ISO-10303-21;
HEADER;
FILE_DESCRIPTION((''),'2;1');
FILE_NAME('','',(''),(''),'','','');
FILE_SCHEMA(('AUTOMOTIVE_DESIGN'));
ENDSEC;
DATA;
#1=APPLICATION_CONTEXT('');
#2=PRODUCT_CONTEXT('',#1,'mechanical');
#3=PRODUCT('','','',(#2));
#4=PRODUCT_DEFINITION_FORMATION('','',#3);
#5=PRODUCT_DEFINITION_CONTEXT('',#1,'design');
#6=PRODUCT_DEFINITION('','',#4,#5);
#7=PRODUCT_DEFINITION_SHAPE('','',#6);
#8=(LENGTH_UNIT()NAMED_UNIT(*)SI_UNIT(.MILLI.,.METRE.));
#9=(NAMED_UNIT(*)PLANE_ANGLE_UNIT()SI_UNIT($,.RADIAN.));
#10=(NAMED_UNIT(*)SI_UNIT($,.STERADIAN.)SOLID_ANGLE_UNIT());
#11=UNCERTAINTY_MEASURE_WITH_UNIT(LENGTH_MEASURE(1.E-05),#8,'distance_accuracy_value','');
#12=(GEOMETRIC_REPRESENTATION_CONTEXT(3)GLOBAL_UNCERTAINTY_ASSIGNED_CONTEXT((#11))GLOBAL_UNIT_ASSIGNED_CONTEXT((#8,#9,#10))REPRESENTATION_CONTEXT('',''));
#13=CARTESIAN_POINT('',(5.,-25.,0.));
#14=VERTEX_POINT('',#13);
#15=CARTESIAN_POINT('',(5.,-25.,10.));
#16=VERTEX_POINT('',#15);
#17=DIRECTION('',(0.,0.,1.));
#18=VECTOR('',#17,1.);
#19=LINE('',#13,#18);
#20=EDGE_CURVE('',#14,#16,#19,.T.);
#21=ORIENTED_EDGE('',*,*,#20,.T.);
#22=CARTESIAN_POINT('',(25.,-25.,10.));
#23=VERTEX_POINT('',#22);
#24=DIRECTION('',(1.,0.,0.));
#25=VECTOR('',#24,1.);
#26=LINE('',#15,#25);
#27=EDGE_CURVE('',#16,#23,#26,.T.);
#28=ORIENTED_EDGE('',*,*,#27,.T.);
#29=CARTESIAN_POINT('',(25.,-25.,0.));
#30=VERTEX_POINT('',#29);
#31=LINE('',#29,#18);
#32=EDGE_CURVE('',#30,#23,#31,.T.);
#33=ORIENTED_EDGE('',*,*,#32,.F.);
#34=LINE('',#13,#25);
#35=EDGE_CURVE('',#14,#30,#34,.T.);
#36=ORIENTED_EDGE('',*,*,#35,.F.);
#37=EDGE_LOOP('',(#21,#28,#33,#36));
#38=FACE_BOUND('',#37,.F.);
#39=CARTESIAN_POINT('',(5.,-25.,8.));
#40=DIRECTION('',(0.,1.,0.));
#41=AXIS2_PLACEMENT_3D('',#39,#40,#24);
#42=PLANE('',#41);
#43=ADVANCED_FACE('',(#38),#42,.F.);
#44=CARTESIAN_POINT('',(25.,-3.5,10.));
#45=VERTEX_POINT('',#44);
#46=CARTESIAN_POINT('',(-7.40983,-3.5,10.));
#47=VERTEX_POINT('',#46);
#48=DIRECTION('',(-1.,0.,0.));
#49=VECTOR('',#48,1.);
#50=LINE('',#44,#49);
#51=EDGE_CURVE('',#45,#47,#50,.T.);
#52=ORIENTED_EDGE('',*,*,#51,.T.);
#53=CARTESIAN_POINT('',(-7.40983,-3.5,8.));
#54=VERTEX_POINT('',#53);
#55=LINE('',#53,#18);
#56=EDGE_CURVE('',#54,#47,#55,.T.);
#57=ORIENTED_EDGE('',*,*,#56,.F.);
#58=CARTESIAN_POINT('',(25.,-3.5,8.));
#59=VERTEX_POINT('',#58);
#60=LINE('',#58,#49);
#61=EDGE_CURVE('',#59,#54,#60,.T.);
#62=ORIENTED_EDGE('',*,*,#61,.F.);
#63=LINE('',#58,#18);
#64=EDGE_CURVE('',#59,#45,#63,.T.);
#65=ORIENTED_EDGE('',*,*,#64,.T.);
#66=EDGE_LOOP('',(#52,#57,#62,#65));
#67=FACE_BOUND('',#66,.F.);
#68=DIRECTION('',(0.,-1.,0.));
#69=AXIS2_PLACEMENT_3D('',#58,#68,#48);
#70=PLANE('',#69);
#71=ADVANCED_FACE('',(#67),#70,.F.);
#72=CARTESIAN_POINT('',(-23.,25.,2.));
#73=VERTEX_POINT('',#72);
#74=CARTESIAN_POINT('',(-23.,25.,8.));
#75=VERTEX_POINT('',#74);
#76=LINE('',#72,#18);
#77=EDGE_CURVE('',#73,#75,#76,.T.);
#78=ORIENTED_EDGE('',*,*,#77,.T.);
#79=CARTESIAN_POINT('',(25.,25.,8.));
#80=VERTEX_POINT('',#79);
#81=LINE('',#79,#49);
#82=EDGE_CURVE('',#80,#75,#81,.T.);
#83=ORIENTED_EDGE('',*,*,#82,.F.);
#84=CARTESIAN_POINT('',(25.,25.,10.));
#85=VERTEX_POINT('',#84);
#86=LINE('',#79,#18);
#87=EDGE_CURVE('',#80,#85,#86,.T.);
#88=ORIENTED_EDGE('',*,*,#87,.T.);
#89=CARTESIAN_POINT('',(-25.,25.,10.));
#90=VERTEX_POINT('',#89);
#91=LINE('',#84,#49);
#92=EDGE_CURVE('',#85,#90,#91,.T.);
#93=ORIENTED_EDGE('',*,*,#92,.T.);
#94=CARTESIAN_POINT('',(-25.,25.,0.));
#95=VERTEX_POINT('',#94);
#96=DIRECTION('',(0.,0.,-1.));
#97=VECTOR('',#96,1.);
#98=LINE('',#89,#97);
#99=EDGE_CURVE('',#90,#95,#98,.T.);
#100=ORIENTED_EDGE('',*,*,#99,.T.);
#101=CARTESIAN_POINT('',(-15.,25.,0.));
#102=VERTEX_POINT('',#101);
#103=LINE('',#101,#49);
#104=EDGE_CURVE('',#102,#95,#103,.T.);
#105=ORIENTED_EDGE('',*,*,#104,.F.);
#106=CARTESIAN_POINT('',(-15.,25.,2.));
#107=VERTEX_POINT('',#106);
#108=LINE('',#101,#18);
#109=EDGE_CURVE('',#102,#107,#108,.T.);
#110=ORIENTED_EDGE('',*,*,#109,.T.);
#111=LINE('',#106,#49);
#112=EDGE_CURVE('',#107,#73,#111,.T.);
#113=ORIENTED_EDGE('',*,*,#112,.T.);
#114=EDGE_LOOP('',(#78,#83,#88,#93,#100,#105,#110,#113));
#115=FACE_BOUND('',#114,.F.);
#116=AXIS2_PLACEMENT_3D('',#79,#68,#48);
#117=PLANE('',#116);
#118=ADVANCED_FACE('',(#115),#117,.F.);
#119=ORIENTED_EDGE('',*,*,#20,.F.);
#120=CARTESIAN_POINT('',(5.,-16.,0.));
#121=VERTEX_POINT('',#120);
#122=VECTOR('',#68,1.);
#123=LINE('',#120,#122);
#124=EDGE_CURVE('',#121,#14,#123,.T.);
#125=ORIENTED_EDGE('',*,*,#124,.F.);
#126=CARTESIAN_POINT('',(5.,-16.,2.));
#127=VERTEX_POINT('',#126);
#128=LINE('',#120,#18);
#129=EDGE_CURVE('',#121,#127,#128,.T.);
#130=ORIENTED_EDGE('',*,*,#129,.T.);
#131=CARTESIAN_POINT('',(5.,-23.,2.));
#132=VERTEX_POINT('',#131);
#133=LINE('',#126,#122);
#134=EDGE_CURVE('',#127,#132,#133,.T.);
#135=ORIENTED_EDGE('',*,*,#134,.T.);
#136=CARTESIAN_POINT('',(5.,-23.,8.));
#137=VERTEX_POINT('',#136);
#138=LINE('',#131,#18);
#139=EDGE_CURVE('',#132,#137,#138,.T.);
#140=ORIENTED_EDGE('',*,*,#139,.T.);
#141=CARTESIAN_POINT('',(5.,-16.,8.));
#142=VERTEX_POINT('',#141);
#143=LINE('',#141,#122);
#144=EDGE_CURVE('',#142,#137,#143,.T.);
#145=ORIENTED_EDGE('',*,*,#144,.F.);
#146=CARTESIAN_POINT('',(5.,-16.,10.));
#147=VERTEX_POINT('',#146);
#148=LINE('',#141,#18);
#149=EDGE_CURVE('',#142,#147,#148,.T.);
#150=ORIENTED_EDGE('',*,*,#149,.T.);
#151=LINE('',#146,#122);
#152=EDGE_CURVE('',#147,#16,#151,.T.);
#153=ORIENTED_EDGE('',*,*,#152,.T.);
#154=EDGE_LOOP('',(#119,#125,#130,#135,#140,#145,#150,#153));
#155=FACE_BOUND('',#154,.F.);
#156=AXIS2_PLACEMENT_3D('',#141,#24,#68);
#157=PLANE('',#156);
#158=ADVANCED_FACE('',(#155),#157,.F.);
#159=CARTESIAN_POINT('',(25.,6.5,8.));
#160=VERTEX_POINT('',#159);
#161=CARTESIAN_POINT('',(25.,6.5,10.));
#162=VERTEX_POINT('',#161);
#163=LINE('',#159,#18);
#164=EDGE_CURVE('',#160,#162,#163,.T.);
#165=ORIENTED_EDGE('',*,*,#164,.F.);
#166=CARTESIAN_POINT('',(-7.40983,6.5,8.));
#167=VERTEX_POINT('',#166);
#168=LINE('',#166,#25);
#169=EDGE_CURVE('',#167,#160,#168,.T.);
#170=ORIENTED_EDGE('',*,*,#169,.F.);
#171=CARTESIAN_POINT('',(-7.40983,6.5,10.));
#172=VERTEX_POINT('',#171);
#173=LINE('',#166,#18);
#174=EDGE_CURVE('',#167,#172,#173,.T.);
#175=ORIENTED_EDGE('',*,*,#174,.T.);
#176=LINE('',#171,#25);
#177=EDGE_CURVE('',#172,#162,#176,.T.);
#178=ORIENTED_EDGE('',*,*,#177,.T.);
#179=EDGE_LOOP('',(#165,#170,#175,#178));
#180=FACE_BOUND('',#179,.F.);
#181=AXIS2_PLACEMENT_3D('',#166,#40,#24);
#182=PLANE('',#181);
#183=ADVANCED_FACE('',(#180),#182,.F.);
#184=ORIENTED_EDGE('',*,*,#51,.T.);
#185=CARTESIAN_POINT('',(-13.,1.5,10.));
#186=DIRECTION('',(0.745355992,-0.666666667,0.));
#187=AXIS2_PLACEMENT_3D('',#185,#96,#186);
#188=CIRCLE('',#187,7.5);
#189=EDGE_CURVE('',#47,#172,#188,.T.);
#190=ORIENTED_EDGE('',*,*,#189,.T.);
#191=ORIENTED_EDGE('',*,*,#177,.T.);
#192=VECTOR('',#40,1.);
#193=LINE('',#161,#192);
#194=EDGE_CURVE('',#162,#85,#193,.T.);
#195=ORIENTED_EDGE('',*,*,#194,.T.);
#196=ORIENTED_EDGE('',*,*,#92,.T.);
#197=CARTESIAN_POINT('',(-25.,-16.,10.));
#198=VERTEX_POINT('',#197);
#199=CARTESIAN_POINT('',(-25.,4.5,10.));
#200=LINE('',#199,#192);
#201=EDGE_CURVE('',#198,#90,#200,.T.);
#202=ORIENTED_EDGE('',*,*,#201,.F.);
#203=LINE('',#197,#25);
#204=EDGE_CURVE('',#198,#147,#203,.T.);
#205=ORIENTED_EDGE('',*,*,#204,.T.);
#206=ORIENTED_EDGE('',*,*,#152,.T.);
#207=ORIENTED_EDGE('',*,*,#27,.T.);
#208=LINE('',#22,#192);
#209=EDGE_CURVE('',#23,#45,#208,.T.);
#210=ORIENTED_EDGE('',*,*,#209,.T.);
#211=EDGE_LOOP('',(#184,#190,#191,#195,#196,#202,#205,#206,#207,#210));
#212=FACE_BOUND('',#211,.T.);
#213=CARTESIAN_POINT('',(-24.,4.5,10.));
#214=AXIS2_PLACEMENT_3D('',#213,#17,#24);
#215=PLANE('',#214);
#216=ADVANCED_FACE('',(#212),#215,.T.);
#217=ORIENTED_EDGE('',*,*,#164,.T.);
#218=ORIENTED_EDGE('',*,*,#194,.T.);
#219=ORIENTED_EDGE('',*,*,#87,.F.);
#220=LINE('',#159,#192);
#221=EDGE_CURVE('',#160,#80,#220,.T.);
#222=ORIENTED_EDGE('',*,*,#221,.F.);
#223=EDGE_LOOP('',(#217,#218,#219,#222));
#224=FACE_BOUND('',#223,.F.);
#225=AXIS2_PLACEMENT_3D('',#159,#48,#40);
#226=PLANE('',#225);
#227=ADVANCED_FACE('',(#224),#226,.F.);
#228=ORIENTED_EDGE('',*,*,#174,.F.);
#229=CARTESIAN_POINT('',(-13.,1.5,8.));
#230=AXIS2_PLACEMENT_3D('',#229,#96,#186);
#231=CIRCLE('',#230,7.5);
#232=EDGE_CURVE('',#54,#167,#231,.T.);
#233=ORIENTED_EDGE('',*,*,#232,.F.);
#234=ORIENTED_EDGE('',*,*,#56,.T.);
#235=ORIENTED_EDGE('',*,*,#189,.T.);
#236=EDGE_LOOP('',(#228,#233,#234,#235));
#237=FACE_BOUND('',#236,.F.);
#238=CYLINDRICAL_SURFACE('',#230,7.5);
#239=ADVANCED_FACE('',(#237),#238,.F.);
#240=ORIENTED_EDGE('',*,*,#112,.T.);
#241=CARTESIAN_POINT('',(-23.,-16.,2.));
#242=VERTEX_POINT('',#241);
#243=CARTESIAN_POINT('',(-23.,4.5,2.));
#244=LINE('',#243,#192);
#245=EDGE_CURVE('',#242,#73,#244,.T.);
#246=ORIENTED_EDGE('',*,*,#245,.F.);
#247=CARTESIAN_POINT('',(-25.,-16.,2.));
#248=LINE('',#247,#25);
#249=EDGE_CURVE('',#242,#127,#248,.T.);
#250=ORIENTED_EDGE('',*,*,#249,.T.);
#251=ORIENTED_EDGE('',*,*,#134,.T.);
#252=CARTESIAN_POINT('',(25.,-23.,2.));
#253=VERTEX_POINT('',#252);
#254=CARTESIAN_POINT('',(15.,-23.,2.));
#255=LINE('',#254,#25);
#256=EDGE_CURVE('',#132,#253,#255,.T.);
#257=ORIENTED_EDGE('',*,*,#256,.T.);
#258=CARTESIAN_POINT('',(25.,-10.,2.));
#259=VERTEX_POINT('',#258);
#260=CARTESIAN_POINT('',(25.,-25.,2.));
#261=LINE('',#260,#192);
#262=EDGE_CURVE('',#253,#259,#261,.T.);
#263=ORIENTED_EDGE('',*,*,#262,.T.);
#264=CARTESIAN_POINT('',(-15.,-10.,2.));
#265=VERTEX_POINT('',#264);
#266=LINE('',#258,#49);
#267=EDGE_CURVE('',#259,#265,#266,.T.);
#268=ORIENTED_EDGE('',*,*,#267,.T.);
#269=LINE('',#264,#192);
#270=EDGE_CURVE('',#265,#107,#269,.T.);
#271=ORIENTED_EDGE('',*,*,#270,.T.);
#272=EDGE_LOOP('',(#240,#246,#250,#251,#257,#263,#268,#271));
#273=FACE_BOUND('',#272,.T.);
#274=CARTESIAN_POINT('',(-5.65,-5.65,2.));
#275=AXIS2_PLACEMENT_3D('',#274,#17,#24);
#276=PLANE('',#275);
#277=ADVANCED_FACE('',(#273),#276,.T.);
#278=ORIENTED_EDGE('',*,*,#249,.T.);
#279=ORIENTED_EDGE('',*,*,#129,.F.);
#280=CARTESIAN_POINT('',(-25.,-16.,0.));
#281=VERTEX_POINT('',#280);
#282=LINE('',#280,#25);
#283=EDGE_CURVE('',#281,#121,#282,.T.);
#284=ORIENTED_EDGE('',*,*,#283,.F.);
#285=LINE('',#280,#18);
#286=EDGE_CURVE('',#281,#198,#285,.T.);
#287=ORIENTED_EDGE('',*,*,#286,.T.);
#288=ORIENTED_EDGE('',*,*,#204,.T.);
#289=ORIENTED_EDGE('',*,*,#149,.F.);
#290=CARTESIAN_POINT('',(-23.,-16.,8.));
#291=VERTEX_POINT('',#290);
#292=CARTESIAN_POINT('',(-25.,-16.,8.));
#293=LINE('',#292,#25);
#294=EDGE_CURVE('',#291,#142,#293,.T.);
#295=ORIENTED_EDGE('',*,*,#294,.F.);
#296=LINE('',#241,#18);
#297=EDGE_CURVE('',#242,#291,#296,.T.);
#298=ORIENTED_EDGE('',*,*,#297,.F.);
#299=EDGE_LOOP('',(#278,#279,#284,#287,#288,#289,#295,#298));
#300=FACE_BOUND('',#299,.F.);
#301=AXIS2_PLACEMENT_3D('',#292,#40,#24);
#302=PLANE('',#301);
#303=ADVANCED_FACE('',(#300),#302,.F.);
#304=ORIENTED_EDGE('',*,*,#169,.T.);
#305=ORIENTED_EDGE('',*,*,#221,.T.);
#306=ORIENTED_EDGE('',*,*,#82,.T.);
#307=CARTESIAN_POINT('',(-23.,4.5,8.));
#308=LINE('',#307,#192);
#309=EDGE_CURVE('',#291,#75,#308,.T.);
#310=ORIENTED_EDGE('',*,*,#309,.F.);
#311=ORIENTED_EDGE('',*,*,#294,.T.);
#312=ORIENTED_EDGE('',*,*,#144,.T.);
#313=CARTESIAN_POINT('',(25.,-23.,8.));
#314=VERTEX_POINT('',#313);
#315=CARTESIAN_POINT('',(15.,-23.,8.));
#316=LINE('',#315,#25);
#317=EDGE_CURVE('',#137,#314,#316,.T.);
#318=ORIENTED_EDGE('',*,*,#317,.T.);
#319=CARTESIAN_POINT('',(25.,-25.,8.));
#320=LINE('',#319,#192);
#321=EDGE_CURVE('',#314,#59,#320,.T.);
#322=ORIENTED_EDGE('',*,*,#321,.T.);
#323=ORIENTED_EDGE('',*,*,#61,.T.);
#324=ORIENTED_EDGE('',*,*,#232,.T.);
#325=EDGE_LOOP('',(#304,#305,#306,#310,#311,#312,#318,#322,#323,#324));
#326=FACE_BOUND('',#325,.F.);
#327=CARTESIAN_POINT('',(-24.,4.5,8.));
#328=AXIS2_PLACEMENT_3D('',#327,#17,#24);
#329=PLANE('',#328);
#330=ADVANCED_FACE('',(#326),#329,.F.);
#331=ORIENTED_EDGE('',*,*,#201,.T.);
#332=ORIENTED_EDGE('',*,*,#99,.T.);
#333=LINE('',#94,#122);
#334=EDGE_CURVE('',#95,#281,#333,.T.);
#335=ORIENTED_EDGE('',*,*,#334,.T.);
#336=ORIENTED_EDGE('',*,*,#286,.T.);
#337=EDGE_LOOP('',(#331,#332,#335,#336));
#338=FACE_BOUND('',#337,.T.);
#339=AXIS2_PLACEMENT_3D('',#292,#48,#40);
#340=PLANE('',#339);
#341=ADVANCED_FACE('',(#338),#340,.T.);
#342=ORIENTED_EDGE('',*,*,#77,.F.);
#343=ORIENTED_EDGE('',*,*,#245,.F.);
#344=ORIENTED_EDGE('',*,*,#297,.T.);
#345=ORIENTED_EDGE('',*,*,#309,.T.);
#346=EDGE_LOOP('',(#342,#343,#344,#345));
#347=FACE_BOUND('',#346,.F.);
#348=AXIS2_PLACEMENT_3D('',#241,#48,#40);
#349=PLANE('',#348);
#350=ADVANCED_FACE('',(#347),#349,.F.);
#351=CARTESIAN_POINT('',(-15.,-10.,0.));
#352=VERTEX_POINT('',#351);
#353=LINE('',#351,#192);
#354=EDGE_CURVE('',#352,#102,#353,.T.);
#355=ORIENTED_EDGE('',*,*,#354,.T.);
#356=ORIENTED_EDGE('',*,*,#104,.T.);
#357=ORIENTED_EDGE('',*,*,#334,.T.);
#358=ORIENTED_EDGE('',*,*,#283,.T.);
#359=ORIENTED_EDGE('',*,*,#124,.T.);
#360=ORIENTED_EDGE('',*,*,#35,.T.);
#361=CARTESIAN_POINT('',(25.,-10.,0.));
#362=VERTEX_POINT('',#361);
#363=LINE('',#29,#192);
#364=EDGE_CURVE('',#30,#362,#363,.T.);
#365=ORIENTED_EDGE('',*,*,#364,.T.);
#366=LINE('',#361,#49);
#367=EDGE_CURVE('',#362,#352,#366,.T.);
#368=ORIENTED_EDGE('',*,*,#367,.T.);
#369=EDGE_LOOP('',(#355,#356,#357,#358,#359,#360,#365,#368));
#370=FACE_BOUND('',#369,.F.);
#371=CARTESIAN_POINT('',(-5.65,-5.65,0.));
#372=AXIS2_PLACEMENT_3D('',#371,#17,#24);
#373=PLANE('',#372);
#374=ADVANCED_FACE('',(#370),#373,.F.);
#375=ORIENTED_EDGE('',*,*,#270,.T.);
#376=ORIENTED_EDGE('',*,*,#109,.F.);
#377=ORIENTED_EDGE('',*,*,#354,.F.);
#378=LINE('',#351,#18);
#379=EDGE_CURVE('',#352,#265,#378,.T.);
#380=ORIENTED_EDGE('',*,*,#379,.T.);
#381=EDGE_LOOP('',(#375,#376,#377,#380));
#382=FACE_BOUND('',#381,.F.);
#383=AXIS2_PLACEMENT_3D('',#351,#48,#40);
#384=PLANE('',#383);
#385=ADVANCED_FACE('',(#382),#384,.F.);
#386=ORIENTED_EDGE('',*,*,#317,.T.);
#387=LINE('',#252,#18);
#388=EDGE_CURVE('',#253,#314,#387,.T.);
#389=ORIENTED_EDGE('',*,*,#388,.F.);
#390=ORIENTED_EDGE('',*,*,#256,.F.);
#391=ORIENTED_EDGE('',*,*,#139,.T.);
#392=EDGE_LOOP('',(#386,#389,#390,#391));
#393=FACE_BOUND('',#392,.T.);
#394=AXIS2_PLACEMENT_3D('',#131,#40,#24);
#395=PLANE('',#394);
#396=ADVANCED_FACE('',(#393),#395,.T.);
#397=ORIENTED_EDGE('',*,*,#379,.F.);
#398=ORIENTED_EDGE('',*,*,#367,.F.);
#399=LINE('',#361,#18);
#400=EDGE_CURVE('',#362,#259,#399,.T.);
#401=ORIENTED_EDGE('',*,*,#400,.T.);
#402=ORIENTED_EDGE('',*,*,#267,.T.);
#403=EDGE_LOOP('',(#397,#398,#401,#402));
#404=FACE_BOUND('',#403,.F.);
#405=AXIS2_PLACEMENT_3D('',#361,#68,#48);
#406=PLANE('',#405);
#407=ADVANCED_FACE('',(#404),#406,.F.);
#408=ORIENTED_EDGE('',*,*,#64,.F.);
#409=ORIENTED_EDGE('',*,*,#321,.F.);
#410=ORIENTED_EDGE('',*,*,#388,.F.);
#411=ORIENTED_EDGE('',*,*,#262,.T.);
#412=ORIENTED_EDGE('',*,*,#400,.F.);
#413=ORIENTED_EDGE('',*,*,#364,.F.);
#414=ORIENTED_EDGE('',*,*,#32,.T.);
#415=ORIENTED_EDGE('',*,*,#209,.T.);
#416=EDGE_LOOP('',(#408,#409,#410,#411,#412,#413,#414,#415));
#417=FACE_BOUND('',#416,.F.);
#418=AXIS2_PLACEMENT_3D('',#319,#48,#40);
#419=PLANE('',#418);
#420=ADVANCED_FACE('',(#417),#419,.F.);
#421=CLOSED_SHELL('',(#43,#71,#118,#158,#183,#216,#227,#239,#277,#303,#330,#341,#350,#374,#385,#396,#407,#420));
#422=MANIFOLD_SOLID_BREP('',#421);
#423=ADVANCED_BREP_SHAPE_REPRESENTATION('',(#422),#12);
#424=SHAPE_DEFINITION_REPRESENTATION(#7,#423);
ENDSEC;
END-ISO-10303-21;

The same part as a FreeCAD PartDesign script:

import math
import FreeCAD as App
import Part
import Sketcher
Q = App.Units.Quantity


def add_polygon(sketch, points):
    """Adds a closed chain of lines whose ends are joined by coincident constraints."""
    first, n = sketch.GeometryCount, len(points)
    for a, b in zip(points, points[1:] + points[:1]):
        sketch.addGeometry(Part.LineSegment(App.Vector(*a, 0), App.Vector(*b, 0)), False)
    for i in range(n):
        sketch.addConstraint(Sketcher.Constraint("Coincident", first + i, 2, first + (i + 1) % n, 1))

doc = App.newDocument("Part")
body = doc.addObject("PartDesign::Body", "Body")

# Sketch on XY plane
sketch1 = body.newObject("Sketcher::SketchObject", "Sketch")
sketch1.AttachmentSupport = (doc.getObject("XY_Plane"), [""])
sketch1.MapMode = "FlatFace"
add_polygon(sketch1, [(-15, 25), (-25, 25), (-25, -16), (5, -16), (5, -25), (25, -25), (25, -10), (-15, -10)])  # lines 0-7
sketch1.addConstraint([
    Sketcher.Constraint("Horizontal", 0),
    Sketcher.Constraint("Vertical", 1),
    Sketcher.Constraint("Horizontal", 2),
    Sketcher.Constraint("Vertical", 3),
    Sketcher.Constraint("Horizontal", 4),
    Sketcher.Constraint("Vertical", 5),
    Sketcher.Constraint("Horizontal", 6),
    Sketcher.Constraint("Vertical", 7),
    Sketcher.Constraint("Symmetric", 0, 2, 4, 2, -1, 1),
    Sketcher.Constraint("DistanceX", 0, 2, 0, 1, Q("10 mm")),
    Sketcher.Constraint("DistanceX", 2, 1, 2, 2, Q("30 mm")),
    Sketcher.Constraint("DistanceX", 4, 1, 4, 2, Q("20 mm")),
    Sketcher.Constraint("DistanceY", 1, 2, 1, 1, Q("41 mm")),
    Sketcher.Constraint("DistanceY", 3, 2, 3, 1, Q("9 mm")),
    Sketcher.Constraint("DistanceY", 5, 1, 5, 2, Q("15 mm")),
])
pad1 = body.newObject("PartDesign::Pad", "Pad")
pad1.Profile = sketch1
pad1.Length = 2

# Sketch on XY plane
sketch2 = body.newObject("Sketcher::SketchObject", "Sketch001")
sketch2.AttachmentSupport = (doc.getObject("XY_Plane"), [""])
sketch2.MapMode = "FlatFace"
sketch2.AttachmentOffset = App.Placement(App.Vector(0, 0, 2), App.Rotation())
add_polygon(sketch2, [(5, -23), (5, -25), (25, -25), (25, -23)])  # lines 0-3
add_polygon(sketch2, [(-25, 25), (-25, -16), (-23, -16), (-23, 25)])  # lines 4-7
sketch2.addConstraint([
    Sketcher.Constraint("Vertical", 0),
    Sketcher.Constraint("Horizontal", 1),
    Sketcher.Constraint("Vertical", 2),
    Sketcher.Constraint("Horizontal", 3),
    Sketcher.Constraint("Vertical", 4),
    Sketcher.Constraint("Horizontal", 5),
    Sketcher.Constraint("Vertical", 6),
    Sketcher.Constraint("Horizontal", 7),
    Sketcher.Constraint("Symmetric", 1, 2, 7, 2, -1, 1),
    Sketcher.Constraint("Equal", 7, 0),
    Sketcher.Constraint("DistanceX", 1, 1, 1, 2, Q("20 mm")),
    Sketcher.Constraint("DistanceX", 5, 1, 5, 2, Q("2 mm")),
    Sketcher.Constraint("DistanceY", 4, 2, 4, 1, Q("41 mm")),
    Sketcher.Constraint("DistanceX", -1, 1, 0, 2, Q("5 mm")),
    Sketcher.Constraint("DistanceY", 0, 2, -1, 1, Q("25 mm")),
])
pad2 = body.newObject("PartDesign::Pad", "Pad001")
pad2.Profile = sketch2
pad2.Length = 6

# Sketch on XY plane
sketch3 = body.newObject("Sketcher::SketchObject", "Sketch002")
sketch3.AttachmentSupport = (doc.getObject("XY_Plane"), [""])
sketch3.MapMode = "FlatFace"
sketch3.AttachmentOffset = App.Placement(App.Vector(0, 0, 8), App.Rotation())
sketch3.addGeometry([
    Part.LineSegment(App.Vector(-25, 25, 0), App.Vector(-25, -16, 0)),  # 0
    Part.LineSegment(App.Vector(-25, -16, 0), App.Vector(5, -16, 0)),  # 1
    Part.LineSegment(App.Vector(5, -16, 0), App.Vector(5, -25, 0)),  # 2
    Part.LineSegment(App.Vector(5, -25, 0), App.Vector(25, -25, 0)),  # 3
    Part.LineSegment(App.Vector(25, -25, 0), App.Vector(25, -4, 0)),  # 4
    Part.LineSegment(App.Vector(25, -4, 0), App.Vector(-7, -4, 0)),  # 5
    Part.ArcOfCircle(Part.Circle(App.Vector(-13, 2, 0), App.Vector(0, 0, 1), 8), math.radians(42), math.radians(318)),  # 6
    Part.LineSegment(App.Vector(-7, 6, 0), App.Vector(25, 6, 0)),  # 7
    Part.LineSegment(App.Vector(25, 6, 0), App.Vector(25, 25, 0)),  # 8
    Part.LineSegment(App.Vector(25, 25, 0), App.Vector(-25, 25, 0)),  # 9
], False)
sketch3.addConstraint([
    Sketcher.Constraint("Coincident", 0, 2, 1, 1),
    Sketcher.Constraint("Coincident", 1, 2, 2, 1),
    Sketcher.Constraint("Coincident", 2, 2, 3, 1),
    Sketcher.Constraint("Coincident", 3, 2, 4, 1),
    Sketcher.Constraint("Coincident", 4, 2, 5, 1),
    Sketcher.Constraint("Coincident", 5, 2, 6, 2),
    Sketcher.Constraint("Coincident", 6, 1, 7, 1),
    Sketcher.Constraint("Coincident", 7, 2, 8, 1),
    Sketcher.Constraint("Coincident", 8, 2, 9, 1),
    Sketcher.Constraint("Coincident", 9, 2, 0, 1),
    Sketcher.Constraint("Vertical", 0),
    Sketcher.Constraint("Horizontal", 1),
    Sketcher.Constraint("Vertical", 2),
    Sketcher.Constraint("Horizontal", 3),
    Sketcher.Constraint("Vertical", 4),
    Sketcher.Constraint("Horizontal", 5),
    Sketcher.Constraint("Horizontal", 7),
    Sketcher.Constraint("Vertical", 8),
    Sketcher.Constraint("Horizontal", 9),
    Sketcher.Constraint("Symmetric", 3, 2, 9, 2, -1, 1),
    Sketcher.Constraint("Vertical", 5, 2, 6, 1),
    Sketcher.Constraint("Vertical", 4, 2, 7, 2),
    Sketcher.Constraint("Radius", 6, Q("7.5 mm")),
    Sketcher.Constraint("DistanceX", 1, 1, 1, 2, Q("30 mm")),
    Sketcher.Constraint("DistanceX", 3, 1, 3, 2, Q("20 mm")),
    Sketcher.Constraint("DistanceY", 0, 2, 0, 1, Q("41 mm")),
    Sketcher.Constraint("DistanceY", 2, 2, 2, 1, Q("9 mm")),
    Sketcher.Constraint("DistanceY", 4, 1, 4, 2, Q("21.5 mm")),
    Sketcher.Constraint("DistanceY", 8, 1, 8, 2, Q("18.5 mm")),
    Sketcher.Constraint("DistanceX", 6, 3, -1, 1, Q("13 mm")),
])
pad3 = body.newObject("PartDesign::Pad", "Pad002")
pad3.Profile = sketch3
pad3.Length = 2

doc.recompute()
